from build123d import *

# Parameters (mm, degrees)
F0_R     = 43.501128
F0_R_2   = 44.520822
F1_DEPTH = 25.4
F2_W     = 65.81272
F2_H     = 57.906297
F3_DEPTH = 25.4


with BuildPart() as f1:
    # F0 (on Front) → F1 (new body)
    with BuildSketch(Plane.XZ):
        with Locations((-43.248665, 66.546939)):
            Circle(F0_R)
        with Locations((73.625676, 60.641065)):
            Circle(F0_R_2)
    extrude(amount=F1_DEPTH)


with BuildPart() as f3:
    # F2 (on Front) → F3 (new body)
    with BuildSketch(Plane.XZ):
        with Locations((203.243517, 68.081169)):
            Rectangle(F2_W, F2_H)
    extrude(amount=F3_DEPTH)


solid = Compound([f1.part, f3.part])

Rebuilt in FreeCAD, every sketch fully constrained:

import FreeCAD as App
import Part
import Sketcher
Q = App.Units.Quantity

doc = App.newDocument("Part")
params = doc.addObject("Spreadsheet::Sheet", "Params")
for row, (alias, value) in enumerate([
    ("pad1_length", "1 in"),
    ("pad2_length", "1 in"),
], start=1):
    params.set(f"A{row}", alias)
    params.set(f"B{row}", "=" + value)
    params.setAlias(f"B{row}", alias)

body = doc.addObject("PartDesign::Body", "Body")
body.AllowCompound = True

# Sketch on XZ plane
sketch1 = doc.addObject("Sketcher::SketchObject", "Sketch")
body.addObject(sketch1)
sketch1.AttachmentSupport = (doc.XZ_Plane, [""])
sketch1.MapMode = "FlatFace"
sketch1.addGeometry([
    Part.Circle(App.Vector(-43, 67, 0), App.Vector(0, 0, 1), 44),
    Part.Circle(App.Vector(74, 61, 0), App.Vector(0, 0, 1), 45),
], False)
sketch1.addConstraint([
    Sketcher.Constraint("Diameter", 0, Q("87.002256 mm")),
    Sketcher.Constraint("Diameter", 1, Q("89.041644 mm")),
    Sketcher.Constraint("DistanceY", -1, 1, 0, 3, Q("66.546939 mm")),
    Sketcher.Constraint("DistanceX", 0, 3, 1, 3, Q("116.874341 mm")),
    Sketcher.Constraint("DistanceX", 0, 3, -1, 1, Q("43.248665 mm")),
    Sketcher.Constraint("DistanceY", -1, 1, 1, 3, Q("60.641065 mm")),
])
pad1 = doc.addObject("PartDesign::Pad", "Pad")
body.addObject(pad1)
pad1.Profile = sketch1
pad1.setExpression("Length", "Params.pad1_length")
body2 = doc.addObject("PartDesign::Body", "Body001")

# Sketch on XZ plane
sketch2 = doc.addObject("Sketcher::SketchObject", "Sketch001")
body2.addObject(sketch2)
sketch2.AttachmentSupport = (doc.getObject("XZ_Plane001"), [""])
sketch2.MapMode = "FlatFace"
sketch2.addGeometry([
    Part.LineSegment(App.Vector(170, 97, 0), App.Vector(170, 39, 0)),
    Part.LineSegment(App.Vector(170, 39, 0), App.Vector(236, 39, 0)),
    Part.LineSegment(App.Vector(236, 39, 0), App.Vector(236, 97, 0)),
    Part.LineSegment(App.Vector(236, 97, 0), App.Vector(170, 97, 0)),
], False)
sketch2.addConstraint([
    Sketcher.Constraint("Coincident", 0, 2, 1, 1),
    Sketcher.Constraint("Coincident", 1, 2, 2, 1),
    Sketcher.Constraint("Coincident", 2, 2, 3, 1),
    Sketcher.Constraint("Coincident", 3, 2, 0, 1),
    Sketcher.Constraint("Vertical", 0),
    Sketcher.Constraint("Horizontal", 1),
    Sketcher.Constraint("Vertical", 2),
    Sketcher.Constraint("Horizontal", 3),
    Sketcher.Constraint("DistanceX", 1, 1, 1, 2, Q("65.81272 mm")),
    Sketcher.Constraint("DistanceY", 0, 2, 0, 1, Q("57.906297 mm")),
    Sketcher.Constraint("DistanceY", -1, 1, 0, 2, Q("39.12802 mm")),
    Sketcher.Constraint("DistanceX", -1, 1, 0, 2, Q("170.337157 mm")),
])
pad2 = doc.addObject("PartDesign::Pad", "Pad001")
body2.addObject(pad2)
pad2.Profile = sketch2
pad2.setExpression("Length", "Params.pad2_length")

doc.recompute()
